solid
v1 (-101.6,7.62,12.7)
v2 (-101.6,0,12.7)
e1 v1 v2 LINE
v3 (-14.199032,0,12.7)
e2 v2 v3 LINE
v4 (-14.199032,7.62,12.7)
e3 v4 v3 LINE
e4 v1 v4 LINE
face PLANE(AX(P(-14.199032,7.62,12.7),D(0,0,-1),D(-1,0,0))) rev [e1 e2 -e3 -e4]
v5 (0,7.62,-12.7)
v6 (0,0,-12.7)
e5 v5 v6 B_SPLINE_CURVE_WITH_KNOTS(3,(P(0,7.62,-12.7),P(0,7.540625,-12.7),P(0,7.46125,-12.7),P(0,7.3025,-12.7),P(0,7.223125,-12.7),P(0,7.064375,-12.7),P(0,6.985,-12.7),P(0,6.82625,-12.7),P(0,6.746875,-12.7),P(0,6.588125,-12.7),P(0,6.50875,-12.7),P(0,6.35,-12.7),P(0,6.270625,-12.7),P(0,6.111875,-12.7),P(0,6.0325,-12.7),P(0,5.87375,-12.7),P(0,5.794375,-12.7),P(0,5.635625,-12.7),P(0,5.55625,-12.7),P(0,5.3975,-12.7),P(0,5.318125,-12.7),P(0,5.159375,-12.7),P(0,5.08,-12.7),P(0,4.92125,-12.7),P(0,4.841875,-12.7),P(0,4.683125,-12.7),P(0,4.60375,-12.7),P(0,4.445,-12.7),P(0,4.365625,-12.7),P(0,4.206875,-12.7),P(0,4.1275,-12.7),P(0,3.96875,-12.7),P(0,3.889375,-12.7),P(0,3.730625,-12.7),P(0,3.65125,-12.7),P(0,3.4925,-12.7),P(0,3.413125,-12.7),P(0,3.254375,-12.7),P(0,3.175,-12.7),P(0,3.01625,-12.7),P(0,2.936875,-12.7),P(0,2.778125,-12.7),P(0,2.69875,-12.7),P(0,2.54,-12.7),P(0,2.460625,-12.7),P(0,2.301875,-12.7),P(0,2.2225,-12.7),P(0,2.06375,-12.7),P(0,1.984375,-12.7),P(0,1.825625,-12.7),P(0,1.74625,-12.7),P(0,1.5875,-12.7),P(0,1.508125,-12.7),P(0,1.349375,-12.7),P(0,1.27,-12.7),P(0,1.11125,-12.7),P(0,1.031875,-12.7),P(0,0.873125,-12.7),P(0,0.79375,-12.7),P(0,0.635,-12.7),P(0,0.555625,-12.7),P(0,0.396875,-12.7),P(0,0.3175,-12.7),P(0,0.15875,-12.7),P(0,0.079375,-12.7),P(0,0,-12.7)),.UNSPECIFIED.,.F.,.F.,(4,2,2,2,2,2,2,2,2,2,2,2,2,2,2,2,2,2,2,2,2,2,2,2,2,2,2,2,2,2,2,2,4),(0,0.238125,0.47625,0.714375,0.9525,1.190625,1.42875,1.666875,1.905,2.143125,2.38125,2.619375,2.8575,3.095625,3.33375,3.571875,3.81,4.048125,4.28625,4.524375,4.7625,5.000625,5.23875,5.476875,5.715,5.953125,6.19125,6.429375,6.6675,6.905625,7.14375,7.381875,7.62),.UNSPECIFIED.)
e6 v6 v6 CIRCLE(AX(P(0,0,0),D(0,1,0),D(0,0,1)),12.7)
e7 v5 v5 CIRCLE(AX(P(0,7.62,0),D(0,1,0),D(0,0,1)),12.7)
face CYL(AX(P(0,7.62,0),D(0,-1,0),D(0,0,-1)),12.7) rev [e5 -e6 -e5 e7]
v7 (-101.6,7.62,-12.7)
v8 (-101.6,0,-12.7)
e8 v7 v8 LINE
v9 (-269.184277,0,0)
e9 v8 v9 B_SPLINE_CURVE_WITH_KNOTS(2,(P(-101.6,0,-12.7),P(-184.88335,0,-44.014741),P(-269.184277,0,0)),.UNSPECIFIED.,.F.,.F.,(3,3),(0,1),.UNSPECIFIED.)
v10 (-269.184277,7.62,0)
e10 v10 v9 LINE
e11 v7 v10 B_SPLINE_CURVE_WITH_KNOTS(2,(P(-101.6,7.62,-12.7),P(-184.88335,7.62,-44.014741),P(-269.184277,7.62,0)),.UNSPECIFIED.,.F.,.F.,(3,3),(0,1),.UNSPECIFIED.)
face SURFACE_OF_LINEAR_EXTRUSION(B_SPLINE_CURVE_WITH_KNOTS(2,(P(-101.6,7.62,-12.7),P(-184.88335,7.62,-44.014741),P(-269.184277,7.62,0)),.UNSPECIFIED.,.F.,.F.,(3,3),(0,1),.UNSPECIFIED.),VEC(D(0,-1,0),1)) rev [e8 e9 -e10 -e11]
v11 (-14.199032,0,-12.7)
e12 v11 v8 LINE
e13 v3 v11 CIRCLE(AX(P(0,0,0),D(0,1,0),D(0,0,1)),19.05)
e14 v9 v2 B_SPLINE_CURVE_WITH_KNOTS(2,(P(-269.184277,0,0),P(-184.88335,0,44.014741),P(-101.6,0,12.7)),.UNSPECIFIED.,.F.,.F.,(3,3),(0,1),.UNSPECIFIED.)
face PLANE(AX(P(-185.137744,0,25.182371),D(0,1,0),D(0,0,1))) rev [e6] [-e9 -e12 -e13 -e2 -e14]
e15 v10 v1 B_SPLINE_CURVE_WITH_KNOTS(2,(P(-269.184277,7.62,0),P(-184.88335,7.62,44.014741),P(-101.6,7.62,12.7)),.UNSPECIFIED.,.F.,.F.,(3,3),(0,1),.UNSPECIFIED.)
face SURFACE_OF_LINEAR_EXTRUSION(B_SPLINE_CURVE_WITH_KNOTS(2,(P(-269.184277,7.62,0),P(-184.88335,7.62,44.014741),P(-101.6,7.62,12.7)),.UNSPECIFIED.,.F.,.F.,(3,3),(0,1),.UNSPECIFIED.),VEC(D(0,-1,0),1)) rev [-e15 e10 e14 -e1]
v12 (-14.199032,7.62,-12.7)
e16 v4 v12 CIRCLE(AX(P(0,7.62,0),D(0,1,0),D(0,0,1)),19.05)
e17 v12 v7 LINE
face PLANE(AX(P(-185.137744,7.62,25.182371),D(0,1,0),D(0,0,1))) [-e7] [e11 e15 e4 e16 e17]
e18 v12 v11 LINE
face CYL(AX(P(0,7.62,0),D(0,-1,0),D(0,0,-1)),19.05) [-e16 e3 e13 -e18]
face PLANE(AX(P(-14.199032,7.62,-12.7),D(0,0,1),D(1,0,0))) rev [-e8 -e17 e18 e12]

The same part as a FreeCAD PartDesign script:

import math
import FreeCAD as App
import Part
import Sketcher
Q = App.Units.Quantity

doc = App.newDocument("Part")
body = doc.addObject("PartDesign::Body", "Body")

sketch1 = body.newObject("Sketcher::SketchObject", "Sketch")
sketch1.AttachmentSupport = (doc.getObject("XZ_Plane"), [""])
sketch1.MapMode = "FlatFace"
sketch1.addGeometry([
    Part.LineSegment(App.Vector(-14.199032, -12.7, 0), App.Vector(-101.6, -12.7, 0)),
    Part.BSplineCurve([App.Vector(-101.6, -12.7, 0), App.Vector(-184.88335, -44.014741, 0), App.Vector(-269.184277, 0, 0)], [3, 3], [0, 1], False, 2, [1, 1, 1], False),
    Part.BSplineCurve([App.Vector(-101.6, 12.7, 0), App.Vector(-184.88335, 44.014741, 0), App.Vector(-269.184277, 0, 0)], [3, 3], [0, 1], False, 2, [1, 1, 1], False),
    Part.LineSegment(App.Vector(-101.6, 12.7, 0), App.Vector(-14.199032, 12.7, 0)),
    Part.ArcOfCircle(Part.Circle(App.Vector(0, 0, 0), App.Vector(0, 0, 1), 19.05), math.radians(-138.189685), math.radians(138.189685)),
    Part.Circle(App.Vector(0, 0, 0), App.Vector(0, 0, 1), 12.7),
], False)
sketch1.addConstraint([
    Sketcher.Constraint("Block", 1),
    Sketcher.Constraint("Block", 2),
    Sketcher.Constraint("Coincident", 0, 2, 1, 1),
    Sketcher.Constraint("Coincident", 2, 1, 3, 1),
    Sketcher.Constraint("Coincident", 3, 2, 4, 2),
    Sketcher.Constraint("Coincident", 4, 1, 0, 1),
    Sketcher.Constraint("Horizontal", 0),
    Sketcher.Constraint("Horizontal", 3),
    Sketcher.Constraint("Coincident", 4, 3, -1, 1),
    Sketcher.Constraint("Coincident", 5, 3, -1, 1),
    Sketcher.Constraint("Diameter", 5, Q("1 in")),
    Sketcher.Constraint("Radius", 4, Q("0.75 in")),
])
pad1 = body.newObject("PartDesign::Pad", "Pad")
pad1.Profile = sketch1
pad1.Length = Q("0.3 in")
pad1.Reversed = True

doc.recompute()
